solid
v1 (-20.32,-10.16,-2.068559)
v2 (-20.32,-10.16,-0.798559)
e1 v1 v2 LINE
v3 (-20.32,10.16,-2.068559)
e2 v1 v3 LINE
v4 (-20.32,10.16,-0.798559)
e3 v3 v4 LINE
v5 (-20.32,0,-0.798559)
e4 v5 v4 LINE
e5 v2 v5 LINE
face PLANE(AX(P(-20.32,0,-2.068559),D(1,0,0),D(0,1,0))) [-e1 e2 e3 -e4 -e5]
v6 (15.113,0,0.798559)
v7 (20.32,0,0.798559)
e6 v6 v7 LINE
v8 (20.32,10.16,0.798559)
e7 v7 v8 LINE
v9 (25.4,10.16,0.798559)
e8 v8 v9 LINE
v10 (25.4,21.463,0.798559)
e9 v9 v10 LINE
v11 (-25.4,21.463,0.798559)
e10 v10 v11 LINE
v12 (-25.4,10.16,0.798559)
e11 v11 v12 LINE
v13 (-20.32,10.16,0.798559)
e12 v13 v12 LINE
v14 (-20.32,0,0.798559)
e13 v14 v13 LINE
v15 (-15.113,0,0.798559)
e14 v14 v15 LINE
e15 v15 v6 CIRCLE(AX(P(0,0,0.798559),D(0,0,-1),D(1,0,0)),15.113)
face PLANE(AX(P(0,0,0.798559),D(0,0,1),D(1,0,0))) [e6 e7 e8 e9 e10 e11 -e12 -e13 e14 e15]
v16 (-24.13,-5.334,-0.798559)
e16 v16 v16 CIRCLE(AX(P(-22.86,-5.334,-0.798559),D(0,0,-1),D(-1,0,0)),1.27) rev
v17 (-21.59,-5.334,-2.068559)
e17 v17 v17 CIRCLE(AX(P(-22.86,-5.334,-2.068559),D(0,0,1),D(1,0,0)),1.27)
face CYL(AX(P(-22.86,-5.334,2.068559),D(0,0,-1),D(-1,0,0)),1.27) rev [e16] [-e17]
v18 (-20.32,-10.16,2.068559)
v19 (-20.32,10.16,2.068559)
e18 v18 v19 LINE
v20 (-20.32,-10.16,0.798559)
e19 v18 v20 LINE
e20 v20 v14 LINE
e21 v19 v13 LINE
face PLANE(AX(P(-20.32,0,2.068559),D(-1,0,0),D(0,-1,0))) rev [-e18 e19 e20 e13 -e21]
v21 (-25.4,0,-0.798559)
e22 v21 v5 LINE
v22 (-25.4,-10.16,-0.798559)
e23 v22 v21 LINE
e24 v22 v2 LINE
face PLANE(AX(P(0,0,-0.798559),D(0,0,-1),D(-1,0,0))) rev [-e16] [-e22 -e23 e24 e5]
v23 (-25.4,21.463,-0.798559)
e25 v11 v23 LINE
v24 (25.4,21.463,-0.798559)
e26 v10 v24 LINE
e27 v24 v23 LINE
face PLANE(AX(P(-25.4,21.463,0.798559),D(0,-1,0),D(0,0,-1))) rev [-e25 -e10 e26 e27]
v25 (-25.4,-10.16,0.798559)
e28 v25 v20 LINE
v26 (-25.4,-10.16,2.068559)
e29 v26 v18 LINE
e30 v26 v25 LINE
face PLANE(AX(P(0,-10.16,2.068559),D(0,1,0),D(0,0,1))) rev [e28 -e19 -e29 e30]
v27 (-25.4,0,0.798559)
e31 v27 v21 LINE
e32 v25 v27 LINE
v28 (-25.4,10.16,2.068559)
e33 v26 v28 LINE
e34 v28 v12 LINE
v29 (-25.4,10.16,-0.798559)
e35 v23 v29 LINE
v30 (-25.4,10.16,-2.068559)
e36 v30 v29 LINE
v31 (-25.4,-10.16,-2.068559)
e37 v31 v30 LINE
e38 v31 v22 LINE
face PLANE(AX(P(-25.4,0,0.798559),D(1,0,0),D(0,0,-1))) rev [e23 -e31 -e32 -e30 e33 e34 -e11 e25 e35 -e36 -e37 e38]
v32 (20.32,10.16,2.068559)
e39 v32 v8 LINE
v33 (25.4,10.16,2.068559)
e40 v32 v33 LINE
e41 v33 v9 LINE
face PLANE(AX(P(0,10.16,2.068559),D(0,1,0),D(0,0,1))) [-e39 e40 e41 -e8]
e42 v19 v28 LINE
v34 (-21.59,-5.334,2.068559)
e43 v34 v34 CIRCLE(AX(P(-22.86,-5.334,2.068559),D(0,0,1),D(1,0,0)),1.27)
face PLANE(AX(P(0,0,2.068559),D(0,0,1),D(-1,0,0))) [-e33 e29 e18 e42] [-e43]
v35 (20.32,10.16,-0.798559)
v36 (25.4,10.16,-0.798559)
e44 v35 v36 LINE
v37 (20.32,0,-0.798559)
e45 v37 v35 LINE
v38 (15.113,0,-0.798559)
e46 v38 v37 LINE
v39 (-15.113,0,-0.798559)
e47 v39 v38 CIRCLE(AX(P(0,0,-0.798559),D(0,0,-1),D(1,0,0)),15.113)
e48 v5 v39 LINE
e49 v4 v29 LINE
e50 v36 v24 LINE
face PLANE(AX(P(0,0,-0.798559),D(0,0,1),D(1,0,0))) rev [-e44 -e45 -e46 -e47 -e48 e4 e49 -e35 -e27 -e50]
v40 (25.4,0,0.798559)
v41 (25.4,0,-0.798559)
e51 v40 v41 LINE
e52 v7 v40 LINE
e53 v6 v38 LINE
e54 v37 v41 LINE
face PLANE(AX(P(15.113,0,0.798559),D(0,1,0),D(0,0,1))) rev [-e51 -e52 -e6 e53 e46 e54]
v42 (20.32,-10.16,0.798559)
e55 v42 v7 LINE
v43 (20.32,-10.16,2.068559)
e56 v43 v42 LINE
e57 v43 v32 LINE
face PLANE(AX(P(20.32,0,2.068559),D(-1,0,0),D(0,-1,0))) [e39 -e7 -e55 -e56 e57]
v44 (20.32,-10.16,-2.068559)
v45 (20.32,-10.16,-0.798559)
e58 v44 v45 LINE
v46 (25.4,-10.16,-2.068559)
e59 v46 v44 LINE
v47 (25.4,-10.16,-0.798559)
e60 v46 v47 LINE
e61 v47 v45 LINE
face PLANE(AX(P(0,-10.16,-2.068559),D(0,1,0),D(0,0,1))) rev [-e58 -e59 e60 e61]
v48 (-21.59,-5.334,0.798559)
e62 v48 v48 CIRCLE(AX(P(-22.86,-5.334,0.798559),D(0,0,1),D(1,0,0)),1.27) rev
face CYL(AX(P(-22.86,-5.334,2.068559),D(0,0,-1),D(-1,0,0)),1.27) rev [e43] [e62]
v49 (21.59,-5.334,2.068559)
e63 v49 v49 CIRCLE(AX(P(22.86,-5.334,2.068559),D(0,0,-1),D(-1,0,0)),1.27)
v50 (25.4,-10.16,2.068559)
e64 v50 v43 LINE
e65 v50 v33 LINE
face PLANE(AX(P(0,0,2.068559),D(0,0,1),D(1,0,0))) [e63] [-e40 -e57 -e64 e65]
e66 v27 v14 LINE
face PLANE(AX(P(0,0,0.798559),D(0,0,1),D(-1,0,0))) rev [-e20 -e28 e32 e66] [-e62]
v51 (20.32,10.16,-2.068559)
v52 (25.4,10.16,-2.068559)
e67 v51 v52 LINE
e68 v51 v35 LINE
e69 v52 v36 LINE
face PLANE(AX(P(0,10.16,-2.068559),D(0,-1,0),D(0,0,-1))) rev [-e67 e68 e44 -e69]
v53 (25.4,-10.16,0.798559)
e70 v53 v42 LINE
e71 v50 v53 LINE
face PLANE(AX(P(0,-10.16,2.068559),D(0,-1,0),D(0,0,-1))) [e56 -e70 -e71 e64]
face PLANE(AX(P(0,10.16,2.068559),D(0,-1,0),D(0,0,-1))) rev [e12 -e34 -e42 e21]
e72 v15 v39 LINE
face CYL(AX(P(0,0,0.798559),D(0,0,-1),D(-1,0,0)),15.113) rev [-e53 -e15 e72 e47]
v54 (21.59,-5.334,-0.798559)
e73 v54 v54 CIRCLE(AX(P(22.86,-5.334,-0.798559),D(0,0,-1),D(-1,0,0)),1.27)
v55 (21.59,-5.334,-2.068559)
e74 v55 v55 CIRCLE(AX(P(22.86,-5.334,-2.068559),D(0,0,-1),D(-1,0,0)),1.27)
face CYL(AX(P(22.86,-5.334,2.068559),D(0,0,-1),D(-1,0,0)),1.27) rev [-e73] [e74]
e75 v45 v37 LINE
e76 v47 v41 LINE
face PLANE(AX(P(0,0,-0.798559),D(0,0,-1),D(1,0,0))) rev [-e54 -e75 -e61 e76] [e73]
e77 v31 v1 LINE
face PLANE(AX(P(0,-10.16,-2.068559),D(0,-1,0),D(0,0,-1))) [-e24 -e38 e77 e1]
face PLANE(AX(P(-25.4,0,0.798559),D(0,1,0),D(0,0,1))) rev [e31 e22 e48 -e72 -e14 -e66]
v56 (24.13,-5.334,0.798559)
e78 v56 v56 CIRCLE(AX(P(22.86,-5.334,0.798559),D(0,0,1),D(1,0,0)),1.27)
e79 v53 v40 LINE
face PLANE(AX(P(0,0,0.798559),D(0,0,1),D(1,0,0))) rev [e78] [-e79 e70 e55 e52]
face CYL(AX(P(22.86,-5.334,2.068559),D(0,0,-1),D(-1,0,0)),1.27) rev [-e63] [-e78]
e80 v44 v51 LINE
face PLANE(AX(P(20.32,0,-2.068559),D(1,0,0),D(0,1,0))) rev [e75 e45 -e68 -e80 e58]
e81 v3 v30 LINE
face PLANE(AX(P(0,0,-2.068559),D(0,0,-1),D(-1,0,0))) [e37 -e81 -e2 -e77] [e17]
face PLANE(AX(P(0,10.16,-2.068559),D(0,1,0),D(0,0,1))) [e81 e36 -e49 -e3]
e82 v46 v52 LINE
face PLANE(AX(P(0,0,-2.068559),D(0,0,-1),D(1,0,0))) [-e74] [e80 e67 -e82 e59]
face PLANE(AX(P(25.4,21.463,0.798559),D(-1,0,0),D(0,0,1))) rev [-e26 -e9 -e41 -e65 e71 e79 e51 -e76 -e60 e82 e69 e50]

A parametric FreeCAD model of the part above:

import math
import FreeCAD as App
import Part
import Sketcher
Q = App.Units.Quantity


def add_polygon(sketch, points):
    """Adds a closed chain of lines whose ends are joined by coincident constraints."""
    first, n = sketch.GeometryCount, len(points)
    for a, b in zip(points, points[1:] + points[:1]):
        sketch.addGeometry(Part.LineSegment(App.Vector(*a, 0), App.Vector(*b, 0)), False)
    for i in range(n):
        sketch.addConstraint(Sketcher.Constraint("Coincident", first + i, 2, first + (i + 1) % n, 1))

doc = App.newDocument("Part")
body = doc.addObject("PartDesign::Body", "Body")

sketch1 = doc.addObject("Sketcher::SketchObject", "Sketch")
body.addObject(sketch1)
sketch1.AttachmentSupport = (doc.XY_Plane, [""])
sketch1.MapMode = "FlatFace"
sketch1.addGeometry(Part.LineSegment(App.Vector(-25.4, 0, 0), App.Vector(-15.113, 0, 0)), False)
sketch1.addGeometry(Part.ArcOfCircle(Part.Circle(App.Vector(0, 0, 0), App.Vector(0, 0, 1), 15.113), math.radians(0), math.radians(180)), False)
sketch1.addGeometry(Part.LineSegment(App.Vector(15.113, 0, 0), App.Vector(25.4, 0, 0)), False)
sketch1.addGeometry(Part.LineSegment(App.Vector(25.4, 0, 0), App.Vector(25.4, 21.463, 0)), False)
sketch1.addGeometry(Part.LineSegment(App.Vector(25.4, 21.463, 0), App.Vector(-25.4, 21.463, 0)), False)
sketch1.addGeometry(Part.LineSegment(App.Vector(-25.4, 21.463, 0), App.Vector(-25.4, 0, 0)), False)
sketch1.addConstraint(Sketcher.Constraint("Coincident", 0, 2, 1, 2))
sketch1.addConstraint(Sketcher.Constraint("Coincident", 1, 1, 2, 1))
sketch1.addConstraint(Sketcher.Constraint("Coincident", 2, 2, 3, 1))
sketch1.addConstraint(Sketcher.Constraint("Coincident", 3, 2, 4, 1))
sketch1.addConstraint(Sketcher.Constraint("Coincident", 4, 2, 5, 1))
sketch1.addConstraint(Sketcher.Constraint("Coincident", 5, 2, 0, 1))
sketch1.addConstraint(Sketcher.Constraint("Horizontal", 0))
sketch1.addConstraint(Sketcher.Constraint("Horizontal", 2))
sketch1.addConstraint(Sketcher.Constraint("Vertical", 3))
sketch1.addConstraint(Sketcher.Constraint("Horizontal", 4))
sketch1.addConstraint(Sketcher.Constraint("Vertical", 5))
sketch1.addConstraint(Sketcher.Constraint("Coincident", 1, 3, -1, 1))
sketch1.addConstraint(Sketcher.Constraint("Symmetric", 2, 2, 5, 2, -1, 1))
sketch1.addConstraint(Sketcher.Constraint("PointOnObject", 0, 2, -1))
sketch1.addConstraint(Sketcher.Constraint("DistanceX", 4, 2, 4, 1, Q("2 in")))
sketch1.addConstraint(Sketcher.Constraint("Radius", 1, Q("0.595 in")))
sketch1.addConstraint(Sketcher.Constraint("DistanceY", 3, 1, 3, 2, Q("0.845 in")))
pad1 = doc.addObject("PartDesign::Pad", "Pad")
body.addObject(pad1)
pad1.Profile = sketch1
pad1.Length = 1.597117
pad1.Midplane = True

sketch2 = doc.addObject("Sketcher::SketchObject", "Sketch001")
body.addObject(sketch2)
sketch2.AttachmentSupport = (doc.XY_Plane, [""])
sketch2.MapMode = "FlatFace"
sketch2.AttachmentOffset = App.Placement(App.Vector(0, 0, 0.798559), App.Rotation())
add_polygon(sketch2, [(20.32, 10.16), (20.32, -10.16), (25.4, -10.16), (25.4, 10.16)])
sketch2.addConstraint(Sketcher.Constraint("Vertical", 0))
sketch2.addConstraint(Sketcher.Constraint("Horizontal", 1))
sketch2.addConstraint(Sketcher.Constraint("Vertical", 2))
sketch2.addConstraint(Sketcher.Constraint("Horizontal", 3))
sketch2.addConstraint(Sketcher.Constraint("DistanceX", 1, 1, 1, 2, Q("0.2 in")))
sketch2.addConstraint(Sketcher.Constraint("DistanceY", 0, 2, 0, 1, Q("0.8 in")))
sketch2.addConstraint(Sketcher.Constraint("DistanceX", -1, 1, 1, 2, Q("1 in")))
sketch2.addConstraint(Sketcher.Constraint("DistanceY", 0, 2, -1, 1, Q("0.4 in")))
pad2 = doc.addObject("PartDesign::Pad", "Pad001")
body.addObject(pad2)
pad2.Profile = sketch2
pad2.Length = Q("0.05 in")
doc.recompute()

mirrored = doc.addObject("PartDesign::Mirrored", "Mirrored")
body.addObject(mirrored)
mirrored.Originals = [pad2]
mirrored.MirrorPlane = (doc.XY_Plane, [""])
body.Tip = mirrored
doc.recompute()

mirrored2 = doc.addObject("PartDesign::Mirrored", "Mirrored001")
body.addObject(mirrored2)
mirrored2.Originals = [pad2]
mirrored2.MirrorPlane = (doc.YZ_Plane, [""])
body.Tip = mirrored2

sketch3 = doc.addObject("Sketcher::SketchObject", "Sketch002")
body.addObject(sketch3)
sketch3.AttachmentSupport = (doc.XY_Plane, [""])
sketch3.MapMode = "FlatFace"
sketch3.AttachmentOffset = App.Placement(App.Vector(0, 0, -0.798559), App.Rotation())
add_polygon(sketch3, [(-20.32, 10.16), (-20.32, -10.16), (-25.4, -10.16), (-25.4, 10.16)])
sketch3.addConstraint(Sketcher.Constraint("Vertical", 0))
sketch3.addConstraint(Sketcher.Constraint("Horizontal", 1))
sketch3.addConstraint(Sketcher.Constraint("Vertical", 2))
sketch3.addConstraint(Sketcher.Constraint("Horizontal", 3))
sketch3.addConstraint(Sketcher.Constraint("DistanceX", 1, 2, 1, 1, Q("0.2 in")))
sketch3.addConstraint(Sketcher.Constraint("DistanceY", 0, 2, 0, 1, Q("0.8 in")))
sketch3.addConstraint(Sketcher.Constraint("DistanceX", 1, 2, -1, 1, Q("1 in")))
sketch3.addConstraint(Sketcher.Constraint("DistanceY", 0, 2, -1, 1, Q("0.4 in")))
pad3 = doc.addObject("PartDesign::Pad", "Pad002")
body.addObject(pad3)
pad3.Profile = sketch3
pad3.Length = Q("0.05 in")
pad3.Reversed = True

sketch4 = doc.addObject("Sketcher::SketchObject", "Sketch003")
body.addObject(sketch4)
sketch4.AttachmentSupport = (doc.XY_Plane, [""])
sketch4.MapMode = "FlatFace"
sketch4.AttachmentOffset = App.Placement(App.Vector(0, 0, -2.068559), App.Rotation())
sketch4.addGeometry(Part.Circle(App.Vector(22.86, -5.334, 0), App.Vector(0, 0, 1), 1.27), False)
sketch4.addConstraint(Sketcher.Constraint("Diameter", 0, Q("0.1 in")))
sketch4.addConstraint(Sketcher.Constraint("DistanceX", -1, 1, 0, 3, Q("0.9 in")))
sketch4.addConstraint(Sketcher.Constraint("DistanceY", 0, 3, -1, 1, Q("0.21 in")))
pocket1 = doc.addObject("PartDesign::Pocket", "Pocket")
body.addObject(pocket1)
pocket1.Profile = sketch4
pocket1.Type = "ThroughAll"
pocket1.Reversed = True
doc.recompute()

mirrored3 = doc.addObject("PartDesign::Mirrored", "Mirrored002")
body.addObject(mirrored3)
mirrored3.Originals = [pocket1]
mirrored3.MirrorPlane = (doc.YZ_Plane, [""])
body.Tip = mirrored3

doc.recompute()
